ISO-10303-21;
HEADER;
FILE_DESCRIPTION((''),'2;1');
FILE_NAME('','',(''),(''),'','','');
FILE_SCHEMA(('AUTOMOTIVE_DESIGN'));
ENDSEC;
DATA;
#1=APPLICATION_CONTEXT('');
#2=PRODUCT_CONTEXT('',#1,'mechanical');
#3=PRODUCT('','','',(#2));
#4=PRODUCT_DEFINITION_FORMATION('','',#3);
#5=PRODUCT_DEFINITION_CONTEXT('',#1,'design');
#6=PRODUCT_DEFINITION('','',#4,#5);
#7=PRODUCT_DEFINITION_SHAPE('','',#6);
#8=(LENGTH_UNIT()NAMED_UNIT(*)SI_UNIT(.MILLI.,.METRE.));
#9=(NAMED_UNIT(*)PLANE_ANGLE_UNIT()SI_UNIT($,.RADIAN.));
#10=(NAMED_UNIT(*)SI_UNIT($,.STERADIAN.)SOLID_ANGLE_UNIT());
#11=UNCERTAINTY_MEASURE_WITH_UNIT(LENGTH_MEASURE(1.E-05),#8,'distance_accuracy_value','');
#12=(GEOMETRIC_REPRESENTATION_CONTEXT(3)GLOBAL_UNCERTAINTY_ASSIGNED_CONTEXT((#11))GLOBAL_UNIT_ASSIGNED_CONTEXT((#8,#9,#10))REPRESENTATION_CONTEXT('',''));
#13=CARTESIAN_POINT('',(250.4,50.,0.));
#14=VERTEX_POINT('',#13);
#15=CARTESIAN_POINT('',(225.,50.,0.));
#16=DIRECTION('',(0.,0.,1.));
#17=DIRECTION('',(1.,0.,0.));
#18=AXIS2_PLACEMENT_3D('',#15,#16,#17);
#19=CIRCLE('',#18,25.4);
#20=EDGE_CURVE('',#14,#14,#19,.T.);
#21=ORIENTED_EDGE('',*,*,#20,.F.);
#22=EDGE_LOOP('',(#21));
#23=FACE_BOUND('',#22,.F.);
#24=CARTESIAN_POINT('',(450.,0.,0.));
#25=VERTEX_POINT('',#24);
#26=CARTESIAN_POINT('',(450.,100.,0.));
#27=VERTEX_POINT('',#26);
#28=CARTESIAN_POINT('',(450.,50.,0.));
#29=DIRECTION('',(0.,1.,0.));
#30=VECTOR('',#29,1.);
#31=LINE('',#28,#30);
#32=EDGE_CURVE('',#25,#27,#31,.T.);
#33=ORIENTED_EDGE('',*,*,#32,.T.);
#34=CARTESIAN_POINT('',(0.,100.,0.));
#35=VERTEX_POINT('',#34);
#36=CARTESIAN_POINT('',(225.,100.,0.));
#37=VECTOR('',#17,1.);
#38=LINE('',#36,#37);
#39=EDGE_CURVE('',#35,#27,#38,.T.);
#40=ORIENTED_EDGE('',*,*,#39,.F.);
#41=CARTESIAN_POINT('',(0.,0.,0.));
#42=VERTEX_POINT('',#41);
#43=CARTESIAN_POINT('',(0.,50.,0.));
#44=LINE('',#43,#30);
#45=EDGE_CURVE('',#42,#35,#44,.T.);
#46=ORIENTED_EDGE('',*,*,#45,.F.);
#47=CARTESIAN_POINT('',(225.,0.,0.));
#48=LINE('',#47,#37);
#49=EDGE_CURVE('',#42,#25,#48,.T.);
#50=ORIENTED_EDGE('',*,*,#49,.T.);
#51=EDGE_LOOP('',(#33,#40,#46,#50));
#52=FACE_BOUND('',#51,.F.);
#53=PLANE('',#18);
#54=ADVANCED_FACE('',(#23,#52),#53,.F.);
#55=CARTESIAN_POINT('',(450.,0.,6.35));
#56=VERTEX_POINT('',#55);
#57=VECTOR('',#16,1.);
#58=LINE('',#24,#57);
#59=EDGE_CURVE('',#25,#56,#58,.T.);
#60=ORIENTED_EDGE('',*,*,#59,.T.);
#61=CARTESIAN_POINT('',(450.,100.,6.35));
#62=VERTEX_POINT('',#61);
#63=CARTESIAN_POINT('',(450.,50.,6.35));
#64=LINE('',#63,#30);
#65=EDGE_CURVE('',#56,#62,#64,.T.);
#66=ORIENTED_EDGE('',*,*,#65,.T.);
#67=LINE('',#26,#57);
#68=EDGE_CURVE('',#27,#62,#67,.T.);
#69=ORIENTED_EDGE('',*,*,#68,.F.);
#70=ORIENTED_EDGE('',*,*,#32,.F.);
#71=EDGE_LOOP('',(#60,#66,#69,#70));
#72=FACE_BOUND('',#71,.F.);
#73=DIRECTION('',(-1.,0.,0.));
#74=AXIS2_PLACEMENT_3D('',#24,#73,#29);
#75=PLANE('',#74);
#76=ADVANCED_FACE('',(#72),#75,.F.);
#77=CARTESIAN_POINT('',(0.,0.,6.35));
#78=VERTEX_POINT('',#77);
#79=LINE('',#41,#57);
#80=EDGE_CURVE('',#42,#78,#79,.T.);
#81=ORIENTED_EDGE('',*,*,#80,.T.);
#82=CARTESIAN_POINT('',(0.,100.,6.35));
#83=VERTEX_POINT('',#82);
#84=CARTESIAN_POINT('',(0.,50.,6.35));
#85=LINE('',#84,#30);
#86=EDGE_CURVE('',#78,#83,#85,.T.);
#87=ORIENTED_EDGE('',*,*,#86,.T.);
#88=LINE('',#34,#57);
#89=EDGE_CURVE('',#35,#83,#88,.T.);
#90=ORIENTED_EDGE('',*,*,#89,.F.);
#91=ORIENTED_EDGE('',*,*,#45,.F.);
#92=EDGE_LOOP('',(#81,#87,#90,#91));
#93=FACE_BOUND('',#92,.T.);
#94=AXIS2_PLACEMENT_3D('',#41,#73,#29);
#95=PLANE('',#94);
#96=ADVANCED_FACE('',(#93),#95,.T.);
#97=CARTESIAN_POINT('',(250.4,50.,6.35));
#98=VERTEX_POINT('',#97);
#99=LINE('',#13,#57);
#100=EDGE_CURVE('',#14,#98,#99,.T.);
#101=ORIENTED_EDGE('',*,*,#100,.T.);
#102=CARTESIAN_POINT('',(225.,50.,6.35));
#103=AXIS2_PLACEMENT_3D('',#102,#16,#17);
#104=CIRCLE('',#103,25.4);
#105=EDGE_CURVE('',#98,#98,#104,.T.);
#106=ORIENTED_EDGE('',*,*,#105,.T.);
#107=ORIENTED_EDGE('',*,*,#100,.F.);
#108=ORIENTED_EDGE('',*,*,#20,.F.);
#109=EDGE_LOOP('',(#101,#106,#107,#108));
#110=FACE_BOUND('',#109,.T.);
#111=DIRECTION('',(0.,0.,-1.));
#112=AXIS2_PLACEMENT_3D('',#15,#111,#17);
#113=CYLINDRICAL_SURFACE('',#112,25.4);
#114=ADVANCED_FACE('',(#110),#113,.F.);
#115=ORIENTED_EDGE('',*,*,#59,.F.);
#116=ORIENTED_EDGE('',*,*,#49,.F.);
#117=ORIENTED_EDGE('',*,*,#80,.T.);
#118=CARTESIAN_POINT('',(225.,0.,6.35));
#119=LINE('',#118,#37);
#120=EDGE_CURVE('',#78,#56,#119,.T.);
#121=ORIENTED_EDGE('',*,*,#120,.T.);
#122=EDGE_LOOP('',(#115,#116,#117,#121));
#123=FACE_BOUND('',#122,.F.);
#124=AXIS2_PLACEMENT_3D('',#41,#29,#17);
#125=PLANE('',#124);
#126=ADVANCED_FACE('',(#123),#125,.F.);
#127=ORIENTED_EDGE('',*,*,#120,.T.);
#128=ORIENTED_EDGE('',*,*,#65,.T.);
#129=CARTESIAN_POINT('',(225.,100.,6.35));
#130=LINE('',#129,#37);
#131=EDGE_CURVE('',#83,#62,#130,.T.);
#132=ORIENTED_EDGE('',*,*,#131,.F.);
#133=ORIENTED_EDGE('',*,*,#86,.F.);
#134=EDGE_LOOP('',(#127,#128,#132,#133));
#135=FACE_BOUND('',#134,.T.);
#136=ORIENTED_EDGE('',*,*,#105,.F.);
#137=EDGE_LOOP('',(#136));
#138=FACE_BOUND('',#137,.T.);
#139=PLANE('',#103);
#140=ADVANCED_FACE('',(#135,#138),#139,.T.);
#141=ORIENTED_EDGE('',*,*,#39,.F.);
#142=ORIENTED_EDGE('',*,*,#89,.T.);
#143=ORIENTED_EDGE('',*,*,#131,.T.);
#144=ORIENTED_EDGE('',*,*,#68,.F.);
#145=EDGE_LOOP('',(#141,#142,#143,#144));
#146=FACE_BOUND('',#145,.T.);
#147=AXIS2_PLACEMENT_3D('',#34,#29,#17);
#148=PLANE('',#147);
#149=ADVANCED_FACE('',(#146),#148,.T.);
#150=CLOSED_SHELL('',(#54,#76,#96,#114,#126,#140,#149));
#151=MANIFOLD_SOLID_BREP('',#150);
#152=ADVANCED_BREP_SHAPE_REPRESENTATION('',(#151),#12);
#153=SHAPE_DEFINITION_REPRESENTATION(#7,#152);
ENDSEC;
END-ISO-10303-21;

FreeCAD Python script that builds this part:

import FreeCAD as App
import Part
import Sketcher

V = App.Vector


def add_polygon(sketch, points):
    """Adds a closed chain of lines whose ends are joined by coincident constraints."""
    first, n = sketch.GeometryCount, len(points)
    for a, b in zip(points, points[1:] + points[:1]):
        sketch.addGeometry(Part.LineSegment(App.Vector(*a, 0), App.Vector(*b, 0)), False)
    for i in range(n):
        sketch.addConstraint(Sketcher.Constraint("Coincident", first + i, 2, first + (i + 1) % n, 1))

doc = App.newDocument("Part")
body = doc.addObject("PartDesign::Body", "Body")

# Sketch on XY plane
sketch1 = body.newObject("Sketcher::SketchObject", "Sketch")
sketch1.AttachmentSupport = (doc.getObject("XY_Plane"), [""])
sketch1.MapMode = "FlatFace"
add_polygon(sketch1, [(0, 100), (0, 0), (450, 0), (450, 100)])  # lines 0-3
sketch1.addGeometry(Part.Circle(V(225, 50, 0), V(0, 0, 1), 25), False)  # 4
sketch1.addConstraint([
    Sketcher.Constraint("Vertical", 0),
    Sketcher.Constraint("Horizontal", 1),
    Sketcher.Constraint("Vertical", 2),
    Sketcher.Constraint("Horizontal", 3),
    Sketcher.Constraint("Coincident", 0, 2, -1, 1),
    Sketcher.Constraint("Diameter", 4, 50.8),
    Sketcher.Constraint("DistanceX", 1, 1, 1, 2, 450.0),
    Sketcher.Constraint("DistanceY", 0, 2, 0, 1, 100.0),
    Sketcher.Constraint("DistanceX", -1, 1, 4, 3, 225.0),
    Sketcher.Constraint("DistanceY", -1, 1, 4, 3, 50.0),
])
pad1 = body.newObject("PartDesign::Pad", "Pad")
pad1.Profile = sketch1
pad1.Length = 6.35

doc.recompute()
